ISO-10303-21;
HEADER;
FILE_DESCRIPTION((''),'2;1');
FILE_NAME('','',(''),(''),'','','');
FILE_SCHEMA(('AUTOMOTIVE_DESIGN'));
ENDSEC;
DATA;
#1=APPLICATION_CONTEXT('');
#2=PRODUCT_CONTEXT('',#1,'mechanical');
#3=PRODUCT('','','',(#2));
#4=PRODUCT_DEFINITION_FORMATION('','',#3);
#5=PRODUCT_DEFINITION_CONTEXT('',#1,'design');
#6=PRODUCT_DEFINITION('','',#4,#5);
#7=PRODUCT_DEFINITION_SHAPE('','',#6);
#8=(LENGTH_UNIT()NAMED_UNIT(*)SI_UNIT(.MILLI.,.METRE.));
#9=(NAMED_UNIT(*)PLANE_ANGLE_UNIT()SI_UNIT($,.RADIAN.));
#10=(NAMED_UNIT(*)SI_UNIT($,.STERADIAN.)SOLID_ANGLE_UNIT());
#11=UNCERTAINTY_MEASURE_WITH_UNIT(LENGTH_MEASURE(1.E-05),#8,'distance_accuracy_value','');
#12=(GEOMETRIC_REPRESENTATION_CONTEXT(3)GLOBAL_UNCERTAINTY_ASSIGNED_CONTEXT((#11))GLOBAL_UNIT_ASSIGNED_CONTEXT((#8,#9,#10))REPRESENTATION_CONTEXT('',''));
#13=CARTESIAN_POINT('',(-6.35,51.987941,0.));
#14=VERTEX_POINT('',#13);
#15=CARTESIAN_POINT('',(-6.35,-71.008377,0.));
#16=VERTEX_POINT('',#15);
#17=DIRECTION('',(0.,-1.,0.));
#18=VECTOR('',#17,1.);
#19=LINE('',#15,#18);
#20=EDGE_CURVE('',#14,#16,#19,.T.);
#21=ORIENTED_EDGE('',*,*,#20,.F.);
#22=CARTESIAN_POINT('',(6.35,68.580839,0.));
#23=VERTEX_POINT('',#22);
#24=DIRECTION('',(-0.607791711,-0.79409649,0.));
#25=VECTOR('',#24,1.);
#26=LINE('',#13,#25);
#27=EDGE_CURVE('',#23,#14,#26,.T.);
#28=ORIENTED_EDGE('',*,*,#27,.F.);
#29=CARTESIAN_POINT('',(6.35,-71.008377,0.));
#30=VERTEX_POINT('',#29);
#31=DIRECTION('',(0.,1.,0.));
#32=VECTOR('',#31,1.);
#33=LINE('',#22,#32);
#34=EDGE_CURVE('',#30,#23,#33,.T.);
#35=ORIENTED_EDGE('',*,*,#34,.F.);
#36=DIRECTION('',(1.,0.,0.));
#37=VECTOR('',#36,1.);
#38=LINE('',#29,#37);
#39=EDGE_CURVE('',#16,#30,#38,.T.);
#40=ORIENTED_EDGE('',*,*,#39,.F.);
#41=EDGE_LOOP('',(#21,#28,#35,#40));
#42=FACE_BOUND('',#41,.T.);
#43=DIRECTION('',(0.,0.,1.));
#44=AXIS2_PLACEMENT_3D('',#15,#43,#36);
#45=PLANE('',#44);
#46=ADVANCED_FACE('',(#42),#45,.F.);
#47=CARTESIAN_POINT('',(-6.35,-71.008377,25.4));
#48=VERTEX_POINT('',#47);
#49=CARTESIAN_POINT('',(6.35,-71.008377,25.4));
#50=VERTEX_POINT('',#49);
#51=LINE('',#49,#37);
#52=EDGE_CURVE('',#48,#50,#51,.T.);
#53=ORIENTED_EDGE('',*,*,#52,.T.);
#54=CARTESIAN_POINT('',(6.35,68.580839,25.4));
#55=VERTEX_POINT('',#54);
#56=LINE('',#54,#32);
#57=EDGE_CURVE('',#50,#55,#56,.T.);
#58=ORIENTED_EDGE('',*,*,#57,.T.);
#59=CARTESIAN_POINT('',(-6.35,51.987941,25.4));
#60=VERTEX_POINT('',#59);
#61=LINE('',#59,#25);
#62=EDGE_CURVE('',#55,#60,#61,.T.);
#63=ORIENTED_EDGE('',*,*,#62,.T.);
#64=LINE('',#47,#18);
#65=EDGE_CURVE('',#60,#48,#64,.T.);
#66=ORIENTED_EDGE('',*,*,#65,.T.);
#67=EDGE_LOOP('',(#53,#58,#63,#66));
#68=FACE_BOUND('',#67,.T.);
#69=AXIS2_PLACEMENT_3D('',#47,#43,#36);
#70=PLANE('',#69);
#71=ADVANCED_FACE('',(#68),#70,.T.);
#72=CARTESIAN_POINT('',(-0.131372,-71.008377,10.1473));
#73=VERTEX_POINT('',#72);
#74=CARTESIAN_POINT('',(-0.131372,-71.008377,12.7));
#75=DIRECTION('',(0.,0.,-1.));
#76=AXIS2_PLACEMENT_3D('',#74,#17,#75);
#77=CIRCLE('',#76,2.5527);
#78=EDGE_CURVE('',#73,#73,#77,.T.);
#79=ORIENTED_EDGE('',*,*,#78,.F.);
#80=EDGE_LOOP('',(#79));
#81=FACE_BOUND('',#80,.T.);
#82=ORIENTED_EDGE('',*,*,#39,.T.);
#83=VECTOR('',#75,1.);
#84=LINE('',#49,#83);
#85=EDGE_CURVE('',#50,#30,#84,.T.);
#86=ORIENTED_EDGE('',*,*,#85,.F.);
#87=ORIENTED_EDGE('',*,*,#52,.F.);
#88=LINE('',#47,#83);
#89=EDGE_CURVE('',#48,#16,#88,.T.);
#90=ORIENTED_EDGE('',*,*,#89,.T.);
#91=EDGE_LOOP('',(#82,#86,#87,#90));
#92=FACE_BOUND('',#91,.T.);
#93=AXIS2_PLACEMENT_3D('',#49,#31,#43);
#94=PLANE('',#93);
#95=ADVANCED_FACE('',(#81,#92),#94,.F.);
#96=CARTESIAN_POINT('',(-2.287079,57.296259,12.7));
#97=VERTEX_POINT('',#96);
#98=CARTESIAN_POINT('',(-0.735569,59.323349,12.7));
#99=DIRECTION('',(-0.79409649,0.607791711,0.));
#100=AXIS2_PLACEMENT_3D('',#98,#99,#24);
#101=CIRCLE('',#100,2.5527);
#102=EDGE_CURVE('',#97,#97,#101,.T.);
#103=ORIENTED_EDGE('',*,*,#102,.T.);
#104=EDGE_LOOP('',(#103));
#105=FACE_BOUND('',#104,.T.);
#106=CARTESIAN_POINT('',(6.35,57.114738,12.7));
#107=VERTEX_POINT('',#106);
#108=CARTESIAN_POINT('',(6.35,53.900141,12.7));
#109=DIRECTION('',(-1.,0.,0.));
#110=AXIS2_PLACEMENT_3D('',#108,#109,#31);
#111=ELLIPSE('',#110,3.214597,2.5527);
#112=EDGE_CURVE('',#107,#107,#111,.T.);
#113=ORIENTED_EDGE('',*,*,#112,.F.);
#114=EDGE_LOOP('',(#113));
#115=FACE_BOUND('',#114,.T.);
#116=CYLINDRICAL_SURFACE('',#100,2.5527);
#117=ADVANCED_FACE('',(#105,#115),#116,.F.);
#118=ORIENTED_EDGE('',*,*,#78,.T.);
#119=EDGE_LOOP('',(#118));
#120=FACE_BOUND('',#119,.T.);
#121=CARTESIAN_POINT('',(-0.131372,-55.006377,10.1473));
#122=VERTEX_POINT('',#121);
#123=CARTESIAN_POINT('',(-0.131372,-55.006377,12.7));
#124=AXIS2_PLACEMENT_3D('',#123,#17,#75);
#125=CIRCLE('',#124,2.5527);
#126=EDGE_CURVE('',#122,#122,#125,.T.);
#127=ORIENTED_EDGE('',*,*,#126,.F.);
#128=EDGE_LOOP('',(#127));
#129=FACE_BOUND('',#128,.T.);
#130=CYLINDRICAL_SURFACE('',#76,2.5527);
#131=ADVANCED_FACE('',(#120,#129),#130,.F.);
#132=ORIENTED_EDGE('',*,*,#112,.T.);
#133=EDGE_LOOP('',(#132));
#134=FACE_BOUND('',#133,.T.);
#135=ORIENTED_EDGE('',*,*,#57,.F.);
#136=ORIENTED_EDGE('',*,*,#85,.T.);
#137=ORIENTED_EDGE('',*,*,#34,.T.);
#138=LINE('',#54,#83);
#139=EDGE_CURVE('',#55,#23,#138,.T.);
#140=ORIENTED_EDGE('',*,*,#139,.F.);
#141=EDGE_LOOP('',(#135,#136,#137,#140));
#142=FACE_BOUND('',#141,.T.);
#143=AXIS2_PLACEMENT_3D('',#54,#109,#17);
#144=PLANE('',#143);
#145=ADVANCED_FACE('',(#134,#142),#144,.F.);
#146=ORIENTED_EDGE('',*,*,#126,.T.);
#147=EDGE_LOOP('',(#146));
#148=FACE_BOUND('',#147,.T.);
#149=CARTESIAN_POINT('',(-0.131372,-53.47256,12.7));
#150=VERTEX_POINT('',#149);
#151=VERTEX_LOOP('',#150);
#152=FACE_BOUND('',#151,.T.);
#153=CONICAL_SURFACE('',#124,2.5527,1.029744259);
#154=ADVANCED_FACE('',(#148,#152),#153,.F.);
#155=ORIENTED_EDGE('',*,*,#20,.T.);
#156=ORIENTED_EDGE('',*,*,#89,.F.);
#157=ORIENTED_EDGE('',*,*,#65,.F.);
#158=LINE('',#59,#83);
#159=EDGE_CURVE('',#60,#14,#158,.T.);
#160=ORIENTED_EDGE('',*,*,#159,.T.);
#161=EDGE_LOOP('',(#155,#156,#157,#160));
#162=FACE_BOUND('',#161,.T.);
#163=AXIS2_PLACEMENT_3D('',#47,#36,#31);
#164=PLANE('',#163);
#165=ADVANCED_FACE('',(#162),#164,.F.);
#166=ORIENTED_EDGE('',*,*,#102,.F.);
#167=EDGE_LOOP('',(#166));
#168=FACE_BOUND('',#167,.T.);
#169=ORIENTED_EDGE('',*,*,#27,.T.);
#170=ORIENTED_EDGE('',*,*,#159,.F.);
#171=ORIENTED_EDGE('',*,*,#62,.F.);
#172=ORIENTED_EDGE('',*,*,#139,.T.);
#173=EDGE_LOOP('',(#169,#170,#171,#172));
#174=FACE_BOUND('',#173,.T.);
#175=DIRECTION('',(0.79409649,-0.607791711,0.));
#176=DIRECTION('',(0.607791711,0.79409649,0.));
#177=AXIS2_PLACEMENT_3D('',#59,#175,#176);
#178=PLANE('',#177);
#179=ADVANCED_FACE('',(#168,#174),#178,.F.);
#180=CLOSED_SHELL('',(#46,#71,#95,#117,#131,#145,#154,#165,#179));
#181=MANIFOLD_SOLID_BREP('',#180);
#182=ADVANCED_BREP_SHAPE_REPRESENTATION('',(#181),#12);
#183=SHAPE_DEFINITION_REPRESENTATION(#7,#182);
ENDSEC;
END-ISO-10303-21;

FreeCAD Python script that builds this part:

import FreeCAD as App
import Part
import Sketcher
Q = App.Units.Quantity

doc = App.newDocument("Part")
body = doc.addObject("PartDesign::Body", "Body")

sketch1 = doc.addObject("Sketcher::SketchObject", "Sketch")
body.addObject(sketch1)
sketch1.AttachmentSupport = (doc.XY_Plane, [""])
sketch1.MapMode = "FlatFace"
sketch1.addGeometry(Part.LineSegment(App.Vector(6.35, 68.580839, 0), App.Vector(-6.35, 51.987941, 0)), False)
sketch1.addGeometry(Part.LineSegment(App.Vector(-6.35, 51.987941, 0), App.Vector(-6.35, -71.008377, 0)), False)
sketch1.addGeometry(Part.LineSegment(App.Vector(-6.35, -71.008377, 0), App.Vector(6.35, -71.008377, 0)), False)
sketch1.addGeometry(Part.LineSegment(App.Vector(6.35, -71.008377, 0), App.Vector(6.35, 68.580839, 0)), False)
sketch1.addConstraint(Sketcher.Constraint("Coincident", 0, 2, 1, 1))
sketch1.addConstraint(Sketcher.Constraint("Coincident", 1, 2, 2, 1))
sketch1.addConstraint(Sketcher.Constraint("Coincident", 2, 2, 3, 1))
sketch1.addConstraint(Sketcher.Constraint("Coincident", 3, 2, 0, 1))
sketch1.addConstraint(Sketcher.Constraint("Vertical", 1))
sketch1.addConstraint(Sketcher.Constraint("Horizontal", 2))
sketch1.addConstraint(Sketcher.Constraint("Vertical", 3))
sketch1.addConstraint(Sketcher.Constraint("DistanceX", 2, 1, 2, 2, Q("0.5 in")))
sketch1.addConstraint(Sketcher.Constraint("DistanceX", 0, 2, -1, 1, Q("0.25 in")))
sketch1.addConstraint(Sketcher.Constraint("Angle", 0, Q("-127.43 deg")))
sketch1.addConstraint(Sketcher.Constraint("DistanceY", 1, 2, 1, 1, Q("122.996318 mm")))
sketch1.addConstraint(Sketcher.Constraint("DistanceY", -1, 1, 0, 2, Q("51.987941 mm")))
pad1 = doc.addObject("PartDesign::Pad", "Pad")
body.addObject(pad1)
pad1.Profile = sketch1
pad1.Length = Q("1 in")

sketch2 = doc.addObject("Sketcher::SketchObject", "Sketch001")
body.addObject(sketch2)
sketch2.Placement = App.Placement(App.Vector(-29.095975, 22.269703, 0), App.Rotation(App.Vector(0.607791711, 0.79409649, 0), App.Vector(0, 0, -0.999999999), App.Vector(-0.79409649, 0.607791711, 0), "ZXY"))
sketch2.addGeometry(Part.Circle(App.Vector(46.66139, -12.7, 0), App.Vector(0, 0, 1), 2.5527), False)
sketch2.addConstraint(Sketcher.Constraint("Diameter", 0, Q("0.201 in")))
sketch2.addConstraint(Sketcher.Constraint("DistanceY", 0, 3, -1, 1, Q("0.5 in")))
sketch2.addConstraint(Sketcher.Constraint("DistanceX", -1, 1, 0, 3, Q("46.66139 mm")))
doc.recompute()
hole = doc.addObject("PartDesign::Hole", "Hole")
body.addObject(hole)
hole.Profile = sketch2
hole.ThreadType = "None"
hole.Diameter = Q("0.201 in")
hole.DepthType = "Dimension"
hole.Depth = Q("0.63 in")
hole.DrillPoint = "Angled"
hole.DrillPointAngle = 118

sketch3 = doc.addObject("Sketcher::SketchObject", "Sketch002")
body.addObject(sketch3)
sketch3.AttachmentSupport = (doc.XZ_Plane, [""])
sketch3.MapMode = "FlatFace"
sketch3.AttachmentOffset = App.Placement(App.Vector(0, 0, 71.008377), App.Rotation())
sketch3.addGeometry(Part.Circle(App.Vector(-0.131372, 12.7, 0), App.Vector(0, 0, 1), 2.5527), False)
sketch3.addConstraint(Sketcher.Constraint("Diameter", 0, Q("0.201 in")))
sketch3.addConstraint(Sketcher.Constraint("DistanceY", -1, 1, 0, 3, Q("0.5 in")))
sketch3.addConstraint(Sketcher.Constraint("DistanceX", 0, 3, -1, 1, Q("0.131372 mm")))
doc.recompute()
hole2 = doc.addObject("PartDesign::Hole", "Hole001")
body.addObject(hole2)
hole2.Profile = sketch3
hole2.ThreadType = "None"
hole2.Diameter = Q("0.201 in")
hole2.DepthType = "Dimension"
hole2.Depth = Q("0.63 in")
hole2.DrillPoint = "Angled"
hole2.DrillPointAngle = 118

doc.recompute()
